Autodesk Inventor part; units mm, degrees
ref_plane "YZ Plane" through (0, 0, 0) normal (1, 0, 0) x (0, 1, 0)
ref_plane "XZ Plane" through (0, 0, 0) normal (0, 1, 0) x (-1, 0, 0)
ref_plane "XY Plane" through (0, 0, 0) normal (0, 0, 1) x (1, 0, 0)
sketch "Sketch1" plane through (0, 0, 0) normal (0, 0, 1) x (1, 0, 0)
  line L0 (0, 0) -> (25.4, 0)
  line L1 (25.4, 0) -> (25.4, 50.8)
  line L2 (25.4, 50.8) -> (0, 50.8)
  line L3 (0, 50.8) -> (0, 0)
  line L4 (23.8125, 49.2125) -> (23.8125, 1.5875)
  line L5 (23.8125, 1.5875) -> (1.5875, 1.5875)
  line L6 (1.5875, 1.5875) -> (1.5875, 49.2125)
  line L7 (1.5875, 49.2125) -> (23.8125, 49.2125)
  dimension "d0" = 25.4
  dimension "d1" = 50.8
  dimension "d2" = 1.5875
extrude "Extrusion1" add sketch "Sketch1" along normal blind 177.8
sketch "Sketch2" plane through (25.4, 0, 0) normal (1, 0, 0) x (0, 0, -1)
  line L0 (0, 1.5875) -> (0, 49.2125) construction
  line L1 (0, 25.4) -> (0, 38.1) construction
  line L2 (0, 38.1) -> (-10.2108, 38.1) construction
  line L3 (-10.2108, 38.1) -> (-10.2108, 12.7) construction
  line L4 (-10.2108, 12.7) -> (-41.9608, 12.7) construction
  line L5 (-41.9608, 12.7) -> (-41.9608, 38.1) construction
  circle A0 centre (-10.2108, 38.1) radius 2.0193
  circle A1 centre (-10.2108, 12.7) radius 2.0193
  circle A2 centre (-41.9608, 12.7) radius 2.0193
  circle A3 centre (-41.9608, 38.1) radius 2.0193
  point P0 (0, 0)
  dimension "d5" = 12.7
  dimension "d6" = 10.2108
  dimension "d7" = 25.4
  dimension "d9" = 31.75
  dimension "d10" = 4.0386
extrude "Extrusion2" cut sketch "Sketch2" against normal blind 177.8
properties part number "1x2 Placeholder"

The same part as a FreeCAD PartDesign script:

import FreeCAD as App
import Part
import Sketcher
Q = App.Units.Quantity


def add_polygon(sketch, points):
    """Adds a closed chain of lines whose ends are joined by coincident constraints."""
    first, n = sketch.GeometryCount, len(points)
    for a, b in zip(points, points[1:] + points[:1]):
        sketch.addGeometry(Part.LineSegment(App.Vector(*a, 0), App.Vector(*b, 0)), False)
    for i in range(n):
        sketch.addConstraint(Sketcher.Constraint("Coincident", first + i, 2, first + (i + 1) % n, 1))

doc = App.newDocument("Part")
body = doc.addObject("PartDesign::Body", "Body")

sketch1 = body.newObject("Sketcher::SketchObject", "Sketch")
sketch1.AttachmentSupport = (doc.getObject("XY_Plane"), [""])
sketch1.MapMode = "FlatFace"
add_polygon(sketch1, [(0, 50.8), (0, 0), (25.4, 0), (25.4, 50.8)])
add_polygon(sketch1, [(1.5875, 49.2125), (23.8125, 49.2125), (23.8125, 1.5875), (1.5875, 1.5875)])
sketch1.addConstraint(Sketcher.Constraint("Vertical", 0))
sketch1.addConstraint(Sketcher.Constraint("Horizontal", 1))
sketch1.addConstraint(Sketcher.Constraint("Vertical", 2))
sketch1.addConstraint(Sketcher.Constraint("Horizontal", 3))
sketch1.addConstraint(Sketcher.Constraint("Horizontal", 4))
sketch1.addConstraint(Sketcher.Constraint("Vertical", 5))
sketch1.addConstraint(Sketcher.Constraint("Horizontal", 6))
sketch1.addConstraint(Sketcher.Constraint("Vertical", 7))
sketch1.addConstraint(Sketcher.Constraint("Coincident", 0, 2, -1, 1))
sketch1.addConstraint(Sketcher.Constraint("DistanceX", 1, 1, 1, 2, Q("1 in")))
sketch1.addConstraint(Sketcher.Constraint("DistanceY", 0, 2, 0, 1, Q("2 in")))
sketch1.addConstraint(Sketcher.Constraint("DistanceY", -1, 1, 5, 2, Q("0.0625 in")))
sketch1.addConstraint(Sketcher.Constraint("DistanceX", -1, 1, 6, 2, Q("0.0625 in")))
sketch1.addConstraint(Sketcher.Constraint("DistanceX", 4, 2, 2, 2, Q("0.0625 in")))
sketch1.addConstraint(Sketcher.Constraint("DistanceY", 4, 2, 2, 2, Q("0.0625 in")))
pad1 = body.newObject("PartDesign::Pad", "Pad")
pad1.Profile = sketch1
pad1.Length = Q("7 in")

sketch2 = body.newObject("Sketcher::SketchObject", "Sketch001")
sketch2.AttachmentSupport = (doc.getObject("YZ_Plane"), [""])
sketch2.MapMode = "FlatFace"
sketch2.AttachmentOffset = App.Placement(App.Vector(0, 0, 1 * 25.4), App.Rotation())
sketch2.addGeometry(Part.Circle(App.Vector(38.1, 10.2108, 0), App.Vector(0, 0, 1), 2.0193), False)
sketch2.addGeometry(Part.Circle(App.Vector(12.7, 10.2108, 0), App.Vector(0, 0, 1), 2.0193), False)
sketch2.addGeometry(Part.Circle(App.Vector(12.7, 41.9608, 0), App.Vector(0, 0, 1), 2.0193), False)
sketch2.addGeometry(Part.Circle(App.Vector(38.1, 41.9608, 0), App.Vector(0, 0, 1), 2.0193), False)
sketch2.addConstraint(Sketcher.Constraint("Equal", 0, 1))
sketch2.addConstraint(Sketcher.Constraint("Equal", 1, 2))
sketch2.addConstraint(Sketcher.Constraint("Equal", 2, 3))
sketch2.addConstraint(Sketcher.Constraint("Horizontal", 0, 3, 1, 3))
sketch2.addConstraint(Sketcher.Constraint("Horizontal", 2, 3, 3, 3))
sketch2.addConstraint(Sketcher.Constraint("Vertical", 1, 3, 2, 3))
sketch2.addConstraint(Sketcher.Constraint("Vertical", 0, 3, 3, 3))
sketch2.addConstraint(Sketcher.Constraint("Diameter", 0, Q("0.159 in")))
sketch2.addConstraint(Sketcher.Constraint("DistanceX", 1, 3, 0, 3, Q("1 in")))
sketch2.addConstraint(Sketcher.Constraint("DistanceX", -1, 1, 1, 3, Q("0.5 in")))
sketch2.addConstraint(Sketcher.Constraint("DistanceY", 1, 3, 2, 3, Q("1.25 in")))
sketch2.addConstraint(Sketcher.Constraint("DistanceY", -1, 1, 0, 3, Q("0.402 in")))
pocket1 = body.newObject("PartDesign::Pocket", "Pocket")
pocket1.Profile = sketch2
pocket1.Length = Q("7 in")

doc.recompute()
